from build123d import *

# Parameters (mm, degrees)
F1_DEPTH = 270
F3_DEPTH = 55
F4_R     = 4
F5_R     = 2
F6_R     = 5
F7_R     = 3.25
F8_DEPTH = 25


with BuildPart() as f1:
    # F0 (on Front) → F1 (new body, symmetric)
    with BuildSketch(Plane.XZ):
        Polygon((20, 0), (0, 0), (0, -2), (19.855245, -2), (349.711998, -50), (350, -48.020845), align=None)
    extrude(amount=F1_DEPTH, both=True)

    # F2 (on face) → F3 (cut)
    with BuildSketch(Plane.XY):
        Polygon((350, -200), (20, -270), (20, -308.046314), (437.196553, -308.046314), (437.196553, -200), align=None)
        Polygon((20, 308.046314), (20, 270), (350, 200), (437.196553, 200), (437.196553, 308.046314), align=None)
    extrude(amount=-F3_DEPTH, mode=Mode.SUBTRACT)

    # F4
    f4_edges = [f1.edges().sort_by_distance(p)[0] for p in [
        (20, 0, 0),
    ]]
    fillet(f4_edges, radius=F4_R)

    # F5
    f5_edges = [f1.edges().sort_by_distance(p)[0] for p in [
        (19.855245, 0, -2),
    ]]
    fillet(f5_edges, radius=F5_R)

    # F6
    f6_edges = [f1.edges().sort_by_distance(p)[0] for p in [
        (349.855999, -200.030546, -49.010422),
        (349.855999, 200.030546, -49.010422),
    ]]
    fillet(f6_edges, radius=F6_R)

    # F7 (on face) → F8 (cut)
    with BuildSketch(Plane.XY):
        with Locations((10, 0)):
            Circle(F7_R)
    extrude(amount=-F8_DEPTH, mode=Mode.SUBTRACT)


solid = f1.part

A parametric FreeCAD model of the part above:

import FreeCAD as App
import Part
import Sketcher

V = App.Vector
Q = App.Units.Quantity


def edges_at(feature, points):
    """Names of the edges that pass closest to the given points."""
    edges = feature.Shape.Edges
    near = lambda p: min(range(len(edges)), key=lambda i: edges[i].distToShape(Part.Vertex(*p))[0])
    return sorted({f"Edge{near(p) + 1}" for p in points})


def add_polygon(sketch, points):
    """Adds a closed chain of lines whose ends are joined by coincident constraints."""
    first, n = sketch.GeometryCount, len(points)
    for a, b in zip(points, points[1:] + points[:1]):
        sketch.addGeometry(Part.LineSegment(App.Vector(*a, 0), App.Vector(*b, 0)), False)
    for i in range(n):
        sketch.addConstraint(Sketcher.Constraint("Coincident", first + i, 2, first + (i + 1) % n, 1))

doc = App.newDocument("Part")
body = doc.addObject("PartDesign::Body", "Body")

# Sketch on XZ plane
sketch1 = body.newObject("Sketcher::SketchObject", "Sketch")
sketch1.AttachmentSupport = (doc.getObject("XZ_Plane"), [""])
sketch1.MapMode = "FlatFace"
add_polygon(sketch1, [(20, 0), (0, 0), (0, -2), (19.9, -2), (349.7, -50), (350, -48)])  # lines 0-5
sketch1.addConstraint([
    Sketcher.Constraint("Horizontal", 0),
    Sketcher.Constraint("Vertical", 1),
    Sketcher.Constraint("Horizontal", 2),
    Sketcher.Constraint("Coincident", 0, 2, -1, 1),
    Sketcher.Constraint("Perpendicular", 3, 4),
    Sketcher.Constraint("Perpendicular", 4, 5),
    Sketcher.Constraint("DistanceX", 0, 2, 0, 1, Q("20 mm")),
    Sketcher.Constraint("DistanceY", 1, 2, 1, 1, Q("2 mm")),
    Sketcher.Constraint("Distance", 4, Q("2 mm")),
    Sketcher.Constraint("DistanceY", 3, 2, -1, 1, Q("50 mm")),
    Sketcher.Constraint("DistanceX", -1, 1, 4, 2, Q("350 mm")),
])
pad1 = body.newObject("PartDesign::Pad", "Pad")
pad1.Profile = sketch1
pad1.Length = 540
pad1.Midplane = True

# Sketch on XY plane
sketch2 = body.newObject("Sketcher::SketchObject", "Sketch001")
sketch2.AttachmentSupport = (doc.getObject("XY_Plane"), [""])
sketch2.MapMode = "FlatFace"
add_polygon(sketch2, [(350, -200), (20, -270), (20, -308), (437, -308), (437, -200)])  # lines 0-4
add_polygon(sketch2, [(20, 308), (20, 270), (350, 200), (437, 200), (437, 308)])  # lines 5-9
sketch2.addConstraint([
    Sketcher.Constraint("Vertical", 1),
    Sketcher.Constraint("Horizontal", 2),
    Sketcher.Constraint("Vertical", 3),
    Sketcher.Constraint("Horizontal", 4),
    Sketcher.Constraint("Vertical", 5),
    Sketcher.Constraint("Horizontal", 7),
    Sketcher.Constraint("Vertical", 8),
    Sketcher.Constraint("Horizontal", 9),
    Sketcher.Constraint("Symmetric", 0, 2, 5, 2, -1),
    Sketcher.Constraint("Symmetric", 4, 2, 6, 2, -1),
    Sketcher.Constraint("Symmetric", 2, 2, 8, 2, -1),
    Sketcher.Constraint("DistanceX", -1, 1, 0, 2, Q("20 mm")),
    Sketcher.Constraint("DistanceY", 0, 2, -1, 1, Q("270 mm")),
    Sketcher.Constraint("DistanceY", 3, 2, -1, 1, Q("200 mm")),
    Sketcher.Constraint("DistanceX", -1, 1, 4, 2, Q("350 mm")),
    Sketcher.Constraint("DistanceX", 2, 1, 2, 2, Q("417.196553 mm")),
    Sketcher.Constraint("DistanceY", 1, 2, 1, 1, Q("38.046314 mm")),
])
pocket1 = body.newObject("PartDesign::Pocket", "Pocket")
pocket1.Profile = sketch2
pocket1.Length = 55
doc.recompute()

fillet = body.newObject("PartDesign::Fillet", "Fillet")
fillet.Base = (pocket1, edges_at(pocket1, [(20, 0, 0)]))
fillet.Radius = 4
doc.recompute()

fillet2 = body.newObject("PartDesign::Fillet", "Fillet001")
fillet2.Base = (fillet, edges_at(fillet, [(19.855, 0, -2)]))
fillet2.Radius = 2
doc.recompute()

fillet3 = body.newObject("PartDesign::Fillet", "Fillet002")
fillet3.Base = (fillet2, edges_at(fillet2, [(349.856, -200.031, -49.01), (349.856, 200.031, -49.01)]))
fillet3.Radius = 5

# Sketch on XY plane
sketch3 = body.newObject("Sketcher::SketchObject", "Sketch002")
sketch3.AttachmentSupport = (doc.getObject("XY_Plane"), [""])
sketch3.MapMode = "FlatFace"
sketch3.addGeometry(Part.Circle(V(10, 0, 0), V(0, 0, 1), 3.2), False)
sketch3.addConstraint([
    Sketcher.Constraint("PointOnObject", 0, 3, -1),
    Sketcher.Constraint("Diameter", 0, Q("6.5 mm")),
    Sketcher.Constraint("DistanceX", -1, 1, 0, 3, Q("10 mm")),
])
pocket2 = body.newObject("PartDesign::Pocket", "Pocket001")
pocket2.Profile = sketch3
pocket2.Length = 25

doc.recompute()
